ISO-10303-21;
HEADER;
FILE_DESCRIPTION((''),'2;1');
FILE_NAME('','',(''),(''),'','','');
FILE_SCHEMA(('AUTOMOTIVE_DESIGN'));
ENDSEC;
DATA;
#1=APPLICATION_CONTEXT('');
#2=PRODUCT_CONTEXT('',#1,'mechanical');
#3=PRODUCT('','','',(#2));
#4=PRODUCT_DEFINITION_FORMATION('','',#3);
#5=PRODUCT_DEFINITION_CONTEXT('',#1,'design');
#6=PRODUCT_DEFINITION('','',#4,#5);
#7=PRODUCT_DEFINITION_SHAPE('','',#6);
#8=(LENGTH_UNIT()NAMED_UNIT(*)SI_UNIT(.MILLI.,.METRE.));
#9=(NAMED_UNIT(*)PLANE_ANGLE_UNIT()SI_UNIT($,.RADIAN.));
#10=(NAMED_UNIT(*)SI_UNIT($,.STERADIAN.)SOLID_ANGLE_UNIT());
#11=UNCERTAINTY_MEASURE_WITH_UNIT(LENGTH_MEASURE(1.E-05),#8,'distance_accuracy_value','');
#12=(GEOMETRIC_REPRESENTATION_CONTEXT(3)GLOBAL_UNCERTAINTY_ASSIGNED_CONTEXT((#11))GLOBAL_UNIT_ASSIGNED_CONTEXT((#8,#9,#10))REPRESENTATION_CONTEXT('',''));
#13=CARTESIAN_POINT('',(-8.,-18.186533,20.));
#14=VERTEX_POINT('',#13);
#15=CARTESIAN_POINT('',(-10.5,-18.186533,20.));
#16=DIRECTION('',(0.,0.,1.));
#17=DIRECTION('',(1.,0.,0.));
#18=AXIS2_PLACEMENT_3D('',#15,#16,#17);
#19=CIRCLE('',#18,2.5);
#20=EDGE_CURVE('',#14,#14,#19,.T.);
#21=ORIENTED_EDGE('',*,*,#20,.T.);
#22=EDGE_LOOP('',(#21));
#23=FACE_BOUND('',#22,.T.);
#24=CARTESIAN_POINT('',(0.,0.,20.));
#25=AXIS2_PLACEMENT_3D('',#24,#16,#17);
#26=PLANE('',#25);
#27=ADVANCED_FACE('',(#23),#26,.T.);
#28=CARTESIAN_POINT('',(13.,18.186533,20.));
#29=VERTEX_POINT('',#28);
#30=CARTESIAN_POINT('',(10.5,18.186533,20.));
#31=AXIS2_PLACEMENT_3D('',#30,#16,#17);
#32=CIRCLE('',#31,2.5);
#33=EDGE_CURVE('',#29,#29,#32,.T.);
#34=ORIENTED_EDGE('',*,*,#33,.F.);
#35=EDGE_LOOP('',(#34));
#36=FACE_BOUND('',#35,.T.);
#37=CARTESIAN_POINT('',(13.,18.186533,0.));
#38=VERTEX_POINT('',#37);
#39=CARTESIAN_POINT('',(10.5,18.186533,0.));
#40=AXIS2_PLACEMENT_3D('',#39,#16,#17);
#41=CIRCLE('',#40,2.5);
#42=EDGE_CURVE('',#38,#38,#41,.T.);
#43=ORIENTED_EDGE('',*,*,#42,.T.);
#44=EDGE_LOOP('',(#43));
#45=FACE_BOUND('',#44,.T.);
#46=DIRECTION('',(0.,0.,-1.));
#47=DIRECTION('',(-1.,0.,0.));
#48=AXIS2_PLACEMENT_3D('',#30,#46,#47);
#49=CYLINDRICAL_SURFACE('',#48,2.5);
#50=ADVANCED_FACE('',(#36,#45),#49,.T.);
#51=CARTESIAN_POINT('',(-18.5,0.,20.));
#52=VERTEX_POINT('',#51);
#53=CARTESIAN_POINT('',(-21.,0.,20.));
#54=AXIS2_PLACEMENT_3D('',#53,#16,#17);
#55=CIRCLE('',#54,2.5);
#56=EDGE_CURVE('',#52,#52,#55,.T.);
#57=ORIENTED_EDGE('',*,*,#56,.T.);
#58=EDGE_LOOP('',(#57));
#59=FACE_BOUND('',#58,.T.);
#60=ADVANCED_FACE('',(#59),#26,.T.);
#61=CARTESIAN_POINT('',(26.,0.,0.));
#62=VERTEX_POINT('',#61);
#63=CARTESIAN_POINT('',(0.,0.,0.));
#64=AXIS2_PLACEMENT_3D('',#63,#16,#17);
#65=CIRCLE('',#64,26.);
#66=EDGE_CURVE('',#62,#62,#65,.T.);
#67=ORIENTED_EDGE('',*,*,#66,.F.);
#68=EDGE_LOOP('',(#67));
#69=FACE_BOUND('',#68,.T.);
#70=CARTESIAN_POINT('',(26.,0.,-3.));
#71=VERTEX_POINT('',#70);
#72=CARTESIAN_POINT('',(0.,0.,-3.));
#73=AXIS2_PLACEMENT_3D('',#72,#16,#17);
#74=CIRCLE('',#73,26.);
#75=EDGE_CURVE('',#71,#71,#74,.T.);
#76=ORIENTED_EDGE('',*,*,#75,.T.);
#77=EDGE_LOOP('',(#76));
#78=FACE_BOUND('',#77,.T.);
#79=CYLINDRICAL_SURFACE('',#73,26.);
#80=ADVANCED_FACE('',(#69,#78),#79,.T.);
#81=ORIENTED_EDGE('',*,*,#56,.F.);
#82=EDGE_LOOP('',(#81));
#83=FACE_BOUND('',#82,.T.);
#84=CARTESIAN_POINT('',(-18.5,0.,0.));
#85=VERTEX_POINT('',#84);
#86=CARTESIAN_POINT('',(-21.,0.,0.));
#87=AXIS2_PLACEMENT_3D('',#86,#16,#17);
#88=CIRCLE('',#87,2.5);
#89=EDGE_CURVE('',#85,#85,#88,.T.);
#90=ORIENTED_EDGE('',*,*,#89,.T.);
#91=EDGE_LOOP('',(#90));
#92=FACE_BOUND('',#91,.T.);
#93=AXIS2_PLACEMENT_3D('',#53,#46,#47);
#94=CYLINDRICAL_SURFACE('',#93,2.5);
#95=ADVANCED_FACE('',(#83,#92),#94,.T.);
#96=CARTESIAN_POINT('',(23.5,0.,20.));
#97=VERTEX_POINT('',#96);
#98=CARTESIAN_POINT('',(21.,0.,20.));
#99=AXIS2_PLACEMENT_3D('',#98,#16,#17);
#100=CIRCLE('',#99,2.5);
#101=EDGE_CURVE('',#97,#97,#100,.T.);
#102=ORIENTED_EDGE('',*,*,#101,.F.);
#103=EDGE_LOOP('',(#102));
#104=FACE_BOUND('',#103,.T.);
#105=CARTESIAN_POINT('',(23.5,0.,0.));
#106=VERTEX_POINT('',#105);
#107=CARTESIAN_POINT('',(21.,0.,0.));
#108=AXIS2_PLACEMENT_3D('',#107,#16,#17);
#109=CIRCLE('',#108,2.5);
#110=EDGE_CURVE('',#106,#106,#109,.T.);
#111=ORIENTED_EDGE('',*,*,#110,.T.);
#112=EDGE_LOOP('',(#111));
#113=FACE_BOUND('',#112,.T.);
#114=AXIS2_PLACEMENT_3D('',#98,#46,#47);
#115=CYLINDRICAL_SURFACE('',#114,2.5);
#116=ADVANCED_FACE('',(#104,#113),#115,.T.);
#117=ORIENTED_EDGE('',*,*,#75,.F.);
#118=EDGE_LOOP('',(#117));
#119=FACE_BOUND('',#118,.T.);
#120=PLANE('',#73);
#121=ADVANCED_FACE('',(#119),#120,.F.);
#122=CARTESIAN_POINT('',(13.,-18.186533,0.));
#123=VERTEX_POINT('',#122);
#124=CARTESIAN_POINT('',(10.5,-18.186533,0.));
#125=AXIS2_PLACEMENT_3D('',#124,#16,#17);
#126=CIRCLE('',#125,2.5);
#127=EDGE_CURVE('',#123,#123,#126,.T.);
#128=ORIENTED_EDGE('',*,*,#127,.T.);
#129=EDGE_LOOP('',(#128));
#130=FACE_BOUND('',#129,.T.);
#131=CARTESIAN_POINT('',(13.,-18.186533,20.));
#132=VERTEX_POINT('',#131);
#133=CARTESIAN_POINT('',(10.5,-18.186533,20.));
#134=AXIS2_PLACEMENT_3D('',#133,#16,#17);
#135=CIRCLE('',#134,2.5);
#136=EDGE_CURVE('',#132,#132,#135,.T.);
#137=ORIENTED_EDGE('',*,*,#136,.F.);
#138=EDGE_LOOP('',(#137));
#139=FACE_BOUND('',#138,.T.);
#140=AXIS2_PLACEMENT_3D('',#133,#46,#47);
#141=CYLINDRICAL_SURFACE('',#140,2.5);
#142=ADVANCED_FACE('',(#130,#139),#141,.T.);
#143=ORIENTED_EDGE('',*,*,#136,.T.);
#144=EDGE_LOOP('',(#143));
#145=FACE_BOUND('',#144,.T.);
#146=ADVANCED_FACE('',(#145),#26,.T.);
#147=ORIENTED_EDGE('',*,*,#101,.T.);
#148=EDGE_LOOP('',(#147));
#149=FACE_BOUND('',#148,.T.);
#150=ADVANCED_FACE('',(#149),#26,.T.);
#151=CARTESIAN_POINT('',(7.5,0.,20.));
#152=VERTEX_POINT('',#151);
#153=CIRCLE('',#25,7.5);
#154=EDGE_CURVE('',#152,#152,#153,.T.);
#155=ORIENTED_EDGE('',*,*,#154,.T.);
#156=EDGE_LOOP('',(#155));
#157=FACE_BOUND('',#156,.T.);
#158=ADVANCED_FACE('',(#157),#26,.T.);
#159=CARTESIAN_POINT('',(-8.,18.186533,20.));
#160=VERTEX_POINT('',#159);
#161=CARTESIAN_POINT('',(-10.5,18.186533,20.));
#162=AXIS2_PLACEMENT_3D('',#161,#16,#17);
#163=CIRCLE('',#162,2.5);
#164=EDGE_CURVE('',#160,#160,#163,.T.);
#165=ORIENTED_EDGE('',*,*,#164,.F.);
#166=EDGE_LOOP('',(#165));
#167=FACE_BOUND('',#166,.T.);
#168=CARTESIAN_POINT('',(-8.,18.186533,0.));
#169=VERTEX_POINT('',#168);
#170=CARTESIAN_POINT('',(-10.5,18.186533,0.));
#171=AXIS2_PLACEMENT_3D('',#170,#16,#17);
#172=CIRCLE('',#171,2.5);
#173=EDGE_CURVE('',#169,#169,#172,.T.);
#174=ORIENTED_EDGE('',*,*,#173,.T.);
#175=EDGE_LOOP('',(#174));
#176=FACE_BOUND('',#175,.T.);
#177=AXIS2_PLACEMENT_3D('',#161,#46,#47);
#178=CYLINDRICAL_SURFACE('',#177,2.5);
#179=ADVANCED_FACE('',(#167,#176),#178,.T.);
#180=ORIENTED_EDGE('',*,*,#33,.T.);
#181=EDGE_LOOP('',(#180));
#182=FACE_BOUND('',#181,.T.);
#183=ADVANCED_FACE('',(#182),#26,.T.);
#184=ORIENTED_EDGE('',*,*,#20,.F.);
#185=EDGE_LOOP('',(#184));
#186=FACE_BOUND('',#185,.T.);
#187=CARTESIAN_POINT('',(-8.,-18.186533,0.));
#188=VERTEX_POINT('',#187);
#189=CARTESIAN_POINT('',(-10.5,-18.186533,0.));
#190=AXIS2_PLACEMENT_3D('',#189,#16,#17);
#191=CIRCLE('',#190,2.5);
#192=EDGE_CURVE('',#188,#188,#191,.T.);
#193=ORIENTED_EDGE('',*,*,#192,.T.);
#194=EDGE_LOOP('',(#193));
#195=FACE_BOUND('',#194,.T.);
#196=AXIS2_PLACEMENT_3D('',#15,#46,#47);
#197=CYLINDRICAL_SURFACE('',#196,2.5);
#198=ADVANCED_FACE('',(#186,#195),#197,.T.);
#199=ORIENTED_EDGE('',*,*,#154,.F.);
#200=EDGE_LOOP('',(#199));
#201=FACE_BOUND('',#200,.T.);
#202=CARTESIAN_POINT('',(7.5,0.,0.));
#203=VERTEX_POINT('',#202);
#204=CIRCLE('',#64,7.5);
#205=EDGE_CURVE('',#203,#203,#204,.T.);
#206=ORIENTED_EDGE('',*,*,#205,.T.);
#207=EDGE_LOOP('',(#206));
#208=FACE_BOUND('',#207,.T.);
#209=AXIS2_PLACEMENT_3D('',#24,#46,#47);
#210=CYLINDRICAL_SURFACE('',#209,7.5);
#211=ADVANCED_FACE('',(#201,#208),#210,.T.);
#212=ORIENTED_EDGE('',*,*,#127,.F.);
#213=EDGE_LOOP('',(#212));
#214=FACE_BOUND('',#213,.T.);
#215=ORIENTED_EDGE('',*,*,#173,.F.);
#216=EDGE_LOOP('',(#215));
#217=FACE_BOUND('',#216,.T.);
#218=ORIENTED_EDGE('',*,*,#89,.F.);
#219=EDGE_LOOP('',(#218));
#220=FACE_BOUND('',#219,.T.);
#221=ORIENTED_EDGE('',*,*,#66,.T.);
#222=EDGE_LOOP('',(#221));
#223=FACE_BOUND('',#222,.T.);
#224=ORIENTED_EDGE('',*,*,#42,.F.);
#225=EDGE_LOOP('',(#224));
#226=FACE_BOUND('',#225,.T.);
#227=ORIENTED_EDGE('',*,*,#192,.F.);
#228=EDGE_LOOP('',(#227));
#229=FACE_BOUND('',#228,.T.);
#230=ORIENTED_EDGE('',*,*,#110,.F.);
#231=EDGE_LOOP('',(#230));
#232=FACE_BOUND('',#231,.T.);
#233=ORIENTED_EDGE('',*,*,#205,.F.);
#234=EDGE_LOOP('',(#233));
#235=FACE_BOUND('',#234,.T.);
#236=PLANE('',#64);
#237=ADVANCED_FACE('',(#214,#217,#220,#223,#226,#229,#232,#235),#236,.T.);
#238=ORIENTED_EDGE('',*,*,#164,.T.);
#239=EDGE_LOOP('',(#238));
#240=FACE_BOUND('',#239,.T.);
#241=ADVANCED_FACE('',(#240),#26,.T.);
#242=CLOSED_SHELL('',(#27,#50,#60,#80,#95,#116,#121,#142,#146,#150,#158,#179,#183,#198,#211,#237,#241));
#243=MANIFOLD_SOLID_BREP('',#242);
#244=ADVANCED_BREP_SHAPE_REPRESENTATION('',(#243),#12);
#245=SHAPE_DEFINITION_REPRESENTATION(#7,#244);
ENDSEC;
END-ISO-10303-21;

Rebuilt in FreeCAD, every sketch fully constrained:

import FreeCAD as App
import Part
import Sketcher
from FreeCAD import Vector

doc = App.newDocument("Part")
params = doc.addObject("Spreadsheet::Sheet", "Params")
for row, (alias, value) in enumerate([
    ("sketch1_diameter", "52 mm"),
    ("pad1_length", "3 mm"),
    ("sketch2_diameter", "5 mm"),
    ("pad2_length", "20 mm"),
    ("sketch3_diameter", "15 mm"),
    ("pad3_length", "20 mm"),
], start=1):
    params.set(f"A{row}", alias)
    params.set(f"B{row}", "=" + value)
    params.setAlias(f"B{row}", alias)

body = doc.addObject("PartDesign::Body", "Body")

sketch1 = body.newObject("Sketcher::SketchObject", "Sketch")
sketch1.AttachmentSupport = (doc.getObject("XY_Plane"), [""])
sketch1.MapMode = "FlatFace"
sketch1.addGeometry(Part.Circle(Vector(0, 0, 0), Vector(0, 0, 1), 26), False)
sketch1.addConstraint([
    Sketcher.Constraint("Coincident", 0, 3, -1, 1),
    Sketcher.Constraint("Diameter", 0, 52.0),
])
sketch1.setExpression("Constraints[1]", "Params.sketch1_diameter")
pad1 = body.newObject("PartDesign::Pad", "Pad")
pad1.Profile = sketch1
pad1.setExpression("Length", "Params.pad1_length")
pad1.Reversed = True

sketch2 = body.newObject("Sketcher::SketchObject", "Sketch001")
sketch2.AttachmentSupport = (doc.getObject("XY_Plane"), [""])
sketch2.MapMode = "FlatFace"
sketch2.addGeometry([
    Part.Circle(Vector(-21, 0, 0), Vector(0, 0, 1), 2.5),
    Part.Circle(Vector(-10.5, 18.2, 0), Vector(0, 0, 1), 2.5),
    Part.Circle(Vector(10.5, 18.2, 0), Vector(0, 0, 1), 2.5),
    Part.Circle(Vector(21, 0, 0), Vector(0, 0, 1), 2.5),
    Part.Circle(Vector(10.5, -18.2, 0), Vector(0, 0, 1), 2.5),
    Part.Circle(Vector(-10.5, -18.2, 0), Vector(0, 0, 1), 2.5),
], False)
sketch2.addConstraint([
    Sketcher.Constraint("Equal", 0, 1),
    Sketcher.Constraint("Equal", 1, 2),
    Sketcher.Constraint("Equal", 2, 3),
    Sketcher.Constraint("Equal", 3, 4),
    Sketcher.Constraint("Equal", 4, 5),
    Sketcher.Constraint("Symmetric", 0, 3, 3, 3, -1, 1),
    Sketcher.Constraint("Symmetric", 1, 3, 4, 3, -1, 1),
    Sketcher.Constraint("Symmetric", 2, 3, 5, 3, -1, 1),
    Sketcher.Constraint("Symmetric", 1, 3, 2, 3, -2),
    Sketcher.Constraint("PointOnObject", 0, 3, -1),
    Sketcher.Constraint("Diameter", 0, 5.0),
    Sketcher.Constraint("DistanceX", 0, 3, -1, 1, 21.0),
    Sketcher.Constraint("DistanceX", 1, 3, 2, 3, 21.0),
    Sketcher.Constraint("DistanceY", -1, 1, 1, 3, 18.186533),
])
sketch2.setExpression("Constraints[10]", "Params.sketch2_diameter")
pad2 = body.newObject("PartDesign::Pad", "Pad001")
pad2.Profile = sketch2
pad2.setExpression("Length", "Params.pad2_length")

sketch3 = body.newObject("Sketcher::SketchObject", "Sketch002")
sketch3.AttachmentSupport = (doc.getObject("XY_Plane"), [""])
sketch3.MapMode = "FlatFace"
sketch3.addGeometry(Part.Circle(Vector(0, 0, 0), Vector(0, 0, 1), 8), False)
sketch3.addConstraint([
    Sketcher.Constraint("Coincident", 0, 3, -1, 1),
    Sketcher.Constraint("Diameter", 0, 15.0),
])
sketch3.setExpression("Constraints[1]", "Params.sketch3_diameter")
pad3 = body.newObject("PartDesign::Pad", "Pad002")
pad3.Profile = sketch3
pad3.setExpression("Length", "Params.pad3_length")

doc.recompute()
